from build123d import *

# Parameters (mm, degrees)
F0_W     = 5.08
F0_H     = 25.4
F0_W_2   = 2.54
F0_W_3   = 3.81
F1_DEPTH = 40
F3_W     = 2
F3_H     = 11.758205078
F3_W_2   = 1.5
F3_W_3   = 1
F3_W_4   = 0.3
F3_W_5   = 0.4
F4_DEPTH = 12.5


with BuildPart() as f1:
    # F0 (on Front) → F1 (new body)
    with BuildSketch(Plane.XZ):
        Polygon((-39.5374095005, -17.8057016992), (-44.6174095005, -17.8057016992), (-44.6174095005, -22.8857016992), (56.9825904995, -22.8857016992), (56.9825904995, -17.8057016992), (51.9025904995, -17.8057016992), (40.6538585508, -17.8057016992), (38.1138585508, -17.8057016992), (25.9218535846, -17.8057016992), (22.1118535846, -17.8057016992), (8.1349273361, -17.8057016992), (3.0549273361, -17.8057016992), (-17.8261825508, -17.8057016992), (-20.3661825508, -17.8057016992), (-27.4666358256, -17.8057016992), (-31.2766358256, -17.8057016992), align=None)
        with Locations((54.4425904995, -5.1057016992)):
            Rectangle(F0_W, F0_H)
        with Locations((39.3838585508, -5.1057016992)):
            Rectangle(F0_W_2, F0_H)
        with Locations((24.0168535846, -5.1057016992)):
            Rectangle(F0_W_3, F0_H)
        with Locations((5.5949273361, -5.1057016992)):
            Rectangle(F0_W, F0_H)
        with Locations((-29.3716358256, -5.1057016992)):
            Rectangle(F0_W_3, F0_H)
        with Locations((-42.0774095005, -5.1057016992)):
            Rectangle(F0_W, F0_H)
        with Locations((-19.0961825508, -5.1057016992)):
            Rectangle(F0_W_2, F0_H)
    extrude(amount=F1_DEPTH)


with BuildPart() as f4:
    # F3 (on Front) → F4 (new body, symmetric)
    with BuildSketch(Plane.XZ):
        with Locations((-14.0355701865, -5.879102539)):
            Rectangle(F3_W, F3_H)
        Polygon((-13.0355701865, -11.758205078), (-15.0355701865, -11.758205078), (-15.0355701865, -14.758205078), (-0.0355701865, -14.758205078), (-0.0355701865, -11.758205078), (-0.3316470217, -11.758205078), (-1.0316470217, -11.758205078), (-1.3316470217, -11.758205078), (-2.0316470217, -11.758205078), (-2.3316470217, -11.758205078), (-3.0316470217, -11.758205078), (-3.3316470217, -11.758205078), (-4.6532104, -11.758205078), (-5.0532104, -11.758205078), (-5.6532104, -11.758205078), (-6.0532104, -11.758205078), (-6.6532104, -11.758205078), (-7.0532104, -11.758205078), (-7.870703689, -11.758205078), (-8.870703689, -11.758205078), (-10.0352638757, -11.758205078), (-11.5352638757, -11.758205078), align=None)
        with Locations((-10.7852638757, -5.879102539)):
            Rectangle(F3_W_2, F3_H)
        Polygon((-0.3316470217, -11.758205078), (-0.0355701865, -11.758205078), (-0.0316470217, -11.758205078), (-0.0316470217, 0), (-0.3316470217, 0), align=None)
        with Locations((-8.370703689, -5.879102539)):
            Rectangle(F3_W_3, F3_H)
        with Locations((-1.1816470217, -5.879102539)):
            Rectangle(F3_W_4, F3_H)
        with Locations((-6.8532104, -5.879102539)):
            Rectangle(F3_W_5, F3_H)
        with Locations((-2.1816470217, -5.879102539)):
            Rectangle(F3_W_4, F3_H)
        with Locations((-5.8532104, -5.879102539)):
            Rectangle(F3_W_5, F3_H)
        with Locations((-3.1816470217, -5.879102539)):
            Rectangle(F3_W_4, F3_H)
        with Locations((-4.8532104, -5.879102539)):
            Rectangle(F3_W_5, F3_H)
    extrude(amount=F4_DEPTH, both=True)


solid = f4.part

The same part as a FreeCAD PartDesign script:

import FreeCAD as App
import Part
import Sketcher
Q = App.Units.Quantity

doc = App.newDocument("Part")
body = doc.addObject("PartDesign::Body", "Body")

# Sketch on XZ plane
sketch1 = body.newObject("Sketcher::SketchObject", "Sketch")
sketch1.AttachmentSupport = (doc.getObject("XZ_Plane"), [""])
sketch1.MapMode = "FlatFace"
sketch1.addGeometry(Part.LineSegment(App.Vector(-44.61741, -22.885702, 0), App.Vector(56.98259, -22.885702, 0)), False)
sketch1.addGeometry(Part.LineSegment(App.Vector(56.98259, -22.885702, 0), App.Vector(56.98259, 7.594298, 0)), False)
sketch1.addGeometry(Part.LineSegment(App.Vector(56.98259, 7.594298, 0), App.Vector(51.902591, 7.594298, 0)), False)
sketch1.addGeometry(Part.LineSegment(App.Vector(51.902591, 7.594298, 0), App.Vector(51.902591, -17.805702, 0)), False)
sketch1.addGeometry(Part.LineSegment(App.Vector(51.902591, -17.805702, 0), App.Vector(40.653859, -17.805702, 0)), False)
sketch1.addGeometry(Part.LineSegment(App.Vector(40.653859, -17.805702, 0), App.Vector(40.653859, 7.594298, 0)), False)
sketch1.addGeometry(Part.LineSegment(App.Vector(40.653859, 7.594298, 0), App.Vector(38.113859, 7.594298, 0)), False)
sketch1.addGeometry(Part.LineSegment(App.Vector(38.113859, 7.594298, 0), App.Vector(38.113859, -17.805702, 0)), False)
sketch1.addGeometry(Part.LineSegment(App.Vector(38.113859, -17.805702, 0), App.Vector(25.921854, -17.805702, 0)), False)
sketch1.addGeometry(Part.LineSegment(App.Vector(25.921854, -17.805702, 0), App.Vector(25.921854, 7.594298, 0)), False)
sketch1.addGeometry(Part.LineSegment(App.Vector(25.921854, 7.594298, 0), App.Vector(22.111854, 7.594298, 0)), False)
sketch1.addGeometry(Part.LineSegment(App.Vector(22.111854, 7.594298, 0), App.Vector(22.111854, -17.805702, 0)), False)
sketch1.addGeometry(Part.LineSegment(App.Vector(22.111854, -17.805702, 0), App.Vector(8.134927, -17.805702, 0)), False)
sketch1.addGeometry(Part.LineSegment(App.Vector(8.134927, -17.805702, 0), App.Vector(8.134927, 7.594298, 0)), False)
sketch1.addGeometry(Part.LineSegment(App.Vector(8.134927, 7.594298, 0), App.Vector(3.054927, 7.594298, 0)), False)
sketch1.addGeometry(Part.LineSegment(App.Vector(3.054927, 7.594298, 0), App.Vector(3.054927, -17.805702, 0)), False)
sketch1.addGeometry(Part.LineSegment(App.Vector(3.054927, -17.805702, 0), App.Vector(-17.826183, -17.805702, 0)), False)
sketch1.addGeometry(Part.LineSegment(App.Vector(-17.826183, -17.805702, 0), App.Vector(-17.826183, 7.594298, 0)), False)
sketch1.addGeometry(Part.LineSegment(App.Vector(-17.826183, 7.594298, 0), App.Vector(-20.366183, 7.594298, 0)), False)
sketch1.addGeometry(Part.LineSegment(App.Vector(-20.366183, 7.594298, 0), App.Vector(-20.366183, -17.805702, 0)), False)
sketch1.addGeometry(Part.LineSegment(App.Vector(-20.366183, -17.805702, 0), App.Vector(-27.466636, -17.805702, 0)), False)
sketch1.addGeometry(Part.LineSegment(App.Vector(-27.466636, -17.805702, 0), App.Vector(-27.466636, 7.594298, 0)), False)
sketch1.addGeometry(Part.LineSegment(App.Vector(-27.466636, 7.594298, 0), App.Vector(-31.276636, 7.594298, 0)), False)
sketch1.addGeometry(Part.LineSegment(App.Vector(-31.276636, 7.594298, 0), App.Vector(-31.276636, -17.805702, 0)), False)
sketch1.addGeometry(Part.LineSegment(App.Vector(-31.276636, -17.805702, 0), App.Vector(-39.53741, -17.805702, 0)), False)
sketch1.addGeometry(Part.LineSegment(App.Vector(-39.53741, -17.805702, 0), App.Vector(-39.53741, 7.594298, 0)), False)
sketch1.addGeometry(Part.LineSegment(App.Vector(-39.53741, 7.594298, 0), App.Vector(-44.61741, 7.594298, 0)), False)
sketch1.addGeometry(Part.LineSegment(App.Vector(-44.61741, 7.594298, 0), App.Vector(-44.61741, -22.885702, 0)), False)
sketch1.addConstraint(Sketcher.Constraint("Coincident", 0, 2, 1, 1))
sketch1.addConstraint(Sketcher.Constraint("Coincident", 1, 2, 2, 1))
sketch1.addConstraint(Sketcher.Constraint("Coincident", 2, 2, 3, 1))
sketch1.addConstraint(Sketcher.Constraint("Coincident", 3, 2, 4, 1))
sketch1.addConstraint(Sketcher.Constraint("Coincident", 4, 2, 5, 1))
sketch1.addConstraint(Sketcher.Constraint("Coincident", 5, 2, 6, 1))
sketch1.addConstraint(Sketcher.Constraint("Coincident", 6, 2, 7, 1))
sketch1.addConstraint(Sketcher.Constraint("Coincident", 7, 2, 8, 1))
sketch1.addConstraint(Sketcher.Constraint("Coincident", 8, 2, 9, 1))
sketch1.addConstraint(Sketcher.Constraint("Coincident", 9, 2, 10, 1))
sketch1.addConstraint(Sketcher.Constraint("Coincident", 10, 2, 11, 1))
sketch1.addConstraint(Sketcher.Constraint("Coincident", 11, 2, 12, 1))
sketch1.addConstraint(Sketcher.Constraint("Coincident", 12, 2, 13, 1))
sketch1.addConstraint(Sketcher.Constraint("Coincident", 13, 2, 14, 1))
sketch1.addConstraint(Sketcher.Constraint("Coincident", 14, 2, 15, 1))
sketch1.addConstraint(Sketcher.Constraint("Coincident", 15, 2, 16, 1))
sketch1.addConstraint(Sketcher.Constraint("Coincident", 16, 2, 17, 1))
sketch1.addConstraint(Sketcher.Constraint("Coincident", 17, 2, 18, 1))
sketch1.addConstraint(Sketcher.Constraint("Coincident", 18, 2, 19, 1))
sketch1.addConstraint(Sketcher.Constraint("Coincident", 19, 2, 20, 1))
sketch1.addConstraint(Sketcher.Constraint("Coincident", 20, 2, 21, 1))
sketch1.addConstraint(Sketcher.Constraint("Coincident", 21, 2, 22, 1))
sketch1.addConstraint(Sketcher.Constraint("Coincident", 22, 2, 23, 1))
sketch1.addConstraint(Sketcher.Constraint("Coincident", 23, 2, 24, 1))
sketch1.addConstraint(Sketcher.Constraint("Coincident", 24, 2, 25, 1))
sketch1.addConstraint(Sketcher.Constraint("Coincident", 25, 2, 26, 1))
sketch1.addConstraint(Sketcher.Constraint("Coincident", 26, 2, 27, 1))
sketch1.addConstraint(Sketcher.Constraint("Coincident", 27, 2, 0, 1))
sketch1.addConstraint(Sketcher.Constraint("Horizontal", 0))
sketch1.addConstraint(Sketcher.Constraint("Vertical", 1))
sketch1.addConstraint(Sketcher.Constraint("Horizontal", 2))
sketch1.addConstraint(Sketcher.Constraint("Vertical", 3))
sketch1.addConstraint(Sketcher.Constraint("Horizontal", 4))
sketch1.addConstraint(Sketcher.Constraint("Vertical", 5))
sketch1.addConstraint(Sketcher.Constraint("Horizontal", 6))
sketch1.addConstraint(Sketcher.Constraint("Vertical", 7))
sketch1.addConstraint(Sketcher.Constraint("Horizontal", 8))
sketch1.addConstraint(Sketcher.Constraint("Vertical", 9))
sketch1.addConstraint(Sketcher.Constraint("Horizontal", 10))
sketch1.addConstraint(Sketcher.Constraint("Vertical", 11))
sketch1.addConstraint(Sketcher.Constraint("Horizontal", 12))
sketch1.addConstraint(Sketcher.Constraint("Vertical", 13))
sketch1.addConstraint(Sketcher.Constraint("Horizontal", 14))
sketch1.addConstraint(Sketcher.Constraint("Vertical", 15))
sketch1.addConstraint(Sketcher.Constraint("Horizontal", 16))
sketch1.addConstraint(Sketcher.Constraint("Vertical", 17))
sketch1.addConstraint(Sketcher.Constraint("Horizontal", 18))
sketch1.addConstraint(Sketcher.Constraint("Vertical", 19))
sketch1.addConstraint(Sketcher.Constraint("Horizontal", 20))
sketch1.addConstraint(Sketcher.Constraint("Vertical", 21))
sketch1.addConstraint(Sketcher.Constraint("Horizontal", 22))
sketch1.addConstraint(Sketcher.Constraint("Vertical", 23))
sketch1.addConstraint(Sketcher.Constraint("Horizontal", 24))
sketch1.addConstraint(Sketcher.Constraint("Vertical", 25))
sketch1.addConstraint(Sketcher.Constraint("Horizontal", 26))
sketch1.addConstraint(Sketcher.Constraint("Vertical", 27))
sketch1.addConstraint(Sketcher.Constraint("Horizontal", 2, 2, 5, 2))
sketch1.addConstraint(Sketcher.Constraint("Horizontal", 4, 2, 7, 2))
sketch1.addConstraint(Sketcher.Constraint("Horizontal", 6, 2, 9, 2))
sketch1.addConstraint(Sketcher.Constraint("Horizontal", 8, 2, 11, 2))
sketch1.addConstraint(Sketcher.Constraint("Horizontal", 10, 2, 13, 2))
sketch1.addConstraint(Sketcher.Constraint("Horizontal", 12, 2, 15, 2))
sketch1.addConstraint(Sketcher.Constraint("Horizontal", 14, 2, 17, 2))
sketch1.addConstraint(Sketcher.Constraint("Horizontal", 16, 2, 19, 2))
sketch1.addConstraint(Sketcher.Constraint("Horizontal", 18, 2, 21, 2))
sketch1.addConstraint(Sketcher.Constraint("Horizontal", 20, 2, 23, 2))
sketch1.addConstraint(Sketcher.Constraint("Horizontal", 22, 2, 25, 2))
sketch1.addConstraint(Sketcher.Constraint("Equal", 2, 14))
sketch1.addConstraint(Sketcher.Constraint("Equal", 6, 18))
sketch1.addConstraint(Sketcher.Constraint("Equal", 10, 22))
sketch1.addConstraint(Sketcher.Constraint("Equal", 14, 26))
sketch1.addConstraint(Sketcher.Constraint("DistanceX", 0, 1, 0, 2, Q("101.6 mm")))
sketch1.addConstraint(Sketcher.Constraint("DistanceY", 3, 2, 3, 1, Q("25.4 mm")))
sketch1.addConstraint(Sketcher.Constraint("DistanceX", 2, 2, 2, 1, Q("5.08 mm")))
sketch1.addConstraint(Sketcher.Constraint("DistanceX", 6, 2, 6, 1, Q("2.54 mm")))
sketch1.addConstraint(Sketcher.Constraint("DistanceX", 10, 2, 10, 1, Q("3.81 mm")))
sketch1.addConstraint(Sketcher.Constraint("DistanceY", 1, 1, 1, 2, Q("30.48 mm")))
sketch1.addConstraint(Sketcher.Constraint("DistanceX", 4, 2, 4, 1, Q("11.248732 mm")))
sketch1.addConstraint(Sketcher.Constraint("DistanceX", 16, 2, 16, 1, Q("20.88111 mm")))
sketch1.addConstraint(Sketcher.Constraint("DistanceY", 0, 2, -1, 1, Q("22.885702 mm")))
sketch1.addConstraint(Sketcher.Constraint("DistanceX", 8, 2, 8, 1, Q("12.192005 mm")))
sketch1.addConstraint(Sketcher.Constraint("DistanceX", 12, 2, 12, 1, Q("13.976926 mm")))
sketch1.addConstraint(Sketcher.Constraint("DistanceX", 20, 2, 20, 1, Q("7.100453 mm")))
sketch1.addConstraint(Sketcher.Constraint("DistanceX", -1, 1, 0, 2, Q("56.98259 mm")))
pad1 = body.newObject("PartDesign::Pad", "Pad")
pad1.Profile = sketch1
pad1.Length = 40
body2 = doc.addObject("PartDesign::Body", "Body001")

# Sketch on XZ plane
sketch2 = body2.newObject("Sketcher::SketchObject", "Sketch001")
sketch2.AttachmentSupport = (doc.getObject("XZ_Plane001"), [""])
sketch2.MapMode = "FlatFace"
sketch2.addGeometry(Part.LineSegment(App.Vector(-15.03557, 0, 0), App.Vector(-15.03557, -14.758205, 0)), False)
sketch2.addGeometry(Part.LineSegment(App.Vector(-15.03557, -14.758205, 0), App.Vector(-0.03557, -14.758205, 0)), False)
sketch2.addGeometry(Part.LineSegment(App.Vector(-0.03557, -14.758205, 0), App.Vector(-0.03557, -11.758205, 0)), False)
sketch2.addGeometry(Part.LineSegment(App.Vector(-0.03557, -11.758205, 0), App.Vector(-0.031647, -11.758205, 0)), False)
sketch2.addGeometry(Part.LineSegment(App.Vector(-0.031647, -11.758205, 0), App.Vector(-0.031647, 0, 0)), False)
sketch2.addGeometry(Part.LineSegment(App.Vector(-0.031647, 0, 0), App.Vector(-0.331647, 0, 0)), False)
sketch2.addGeometry(Part.LineSegment(App.Vector(-0.331647, 0, 0), App.Vector(-0.331647, -11.758205, 0)), False)
sketch2.addGeometry(Part.LineSegment(App.Vector(-0.331647, -11.758205, 0), App.Vector(-1.031647, -11.758205, 0)), False)
sketch2.addGeometry(Part.LineSegment(App.Vector(-1.031647, -11.758205, 0), App.Vector(-1.031647, 0, 0)), False)
sketch2.addGeometry(Part.LineSegment(App.Vector(-1.031647, 0, 0), App.Vector(-1.331647, 0, 0)), False)
sketch2.addGeometry(Part.LineSegment(App.Vector(-1.331647, 0, 0), App.Vector(-1.331647, -11.758205, 0)), False)
sketch2.addGeometry(Part.LineSegment(App.Vector(-1.331647, -11.758205, 0), App.Vector(-2.031647, -11.758205, 0)), False)
sketch2.addGeometry(Part.LineSegment(App.Vector(-2.031647, -11.758205, 0), App.Vector(-2.031647, 0, 0)), False)
sketch2.addGeometry(Part.LineSegment(App.Vector(-2.031647, 0, 0), App.Vector(-2.331647, 0, 0)), False)
sketch2.addGeometry(Part.LineSegment(App.Vector(-2.331647, 0, 0), App.Vector(-2.331647, -11.758205, 0)), False)
sketch2.addGeometry(Part.LineSegment(App.Vector(-2.331647, -11.758205, 0), App.Vector(-3.031647, -11.758205, 0)), False)
sketch2.addGeometry(Part.LineSegment(App.Vector(-3.031647, -11.758205, 0), App.Vector(-3.031647, 0, 0)), False)
sketch2.addGeometry(Part.LineSegment(App.Vector(-3.031647, 0, 0), App.Vector(-3.331647, 0, 0)), False)
sketch2.addGeometry(Part.LineSegment(App.Vector(-3.331647, 0, 0), App.Vector(-3.331647, -11.758205, 0)), False)
sketch2.addGeometry(Part.LineSegment(App.Vector(-3.331647, -11.758205, 0), App.Vector(-4.65321, -11.758205, 0)), False)
sketch2.addGeometry(Part.LineSegment(App.Vector(-4.65321, -11.758205, 0), App.Vector(-4.65321, 0, 0)), False)
sketch2.addGeometry(Part.LineSegment(App.Vector(-4.65321, 0, 0), App.Vector(-5.05321, 0, 0)), False)
sketch2.addGeometry(Part.LineSegment(App.Vector(-5.05321, 0, 0), App.Vector(-5.05321, -11.758205, 0)), False)
sketch2.addGeometry(Part.LineSegment(App.Vector(-5.05321, -11.758205, 0), App.Vector(-5.65321, -11.758205, 0)), False)
sketch2.addGeometry(Part.LineSegment(App.Vector(-5.65321, -11.758205, 0), App.Vector(-5.65321, 0, 0)), False)
sketch2.addGeometry(Part.LineSegment(App.Vector(-5.65321, 0, 0), App.Vector(-6.05321, 0, 0)), False)
sketch2.addGeometry(Part.LineSegment(App.Vector(-6.05321, 0, 0), App.Vector(-6.05321, -11.758205, 0)), False)
sketch2.addGeometry(Part.LineSegment(App.Vector(-6.05321, -11.758205, 0), App.Vector(-6.65321, -11.758205, 0)), False)
sketch2.addGeometry(Part.LineSegment(App.Vector(-6.65321, -11.758205, 0), App.Vector(-6.65321, 0, 0)), False)
sketch2.addGeometry(Part.LineSegment(App.Vector(-6.65321, 0, 0), App.Vector(-7.05321, 0, 0)), False)
sketch2.addGeometry(Part.LineSegment(App.Vector(-7.05321, 0, 0), App.Vector(-7.05321, -11.758205, 0)), False)
sketch2.addGeometry(Part.LineSegment(App.Vector(-7.05321, -11.758205, 0), App.Vector(-7.870704, -11.758205, 0)), False)
sketch2.addGeometry(Part.LineSegment(App.Vector(-7.870704, -11.758205, 0), App.Vector(-7.870704, 0, 0)), False)
sketch2.addGeometry(Part.LineSegment(App.Vector(-7.870704, 0, 0), App.Vector(-8.870704, 0, 0)), False)
sketch2.addGeometry(Part.LineSegment(App.Vector(-8.870704, 0, 0), App.Vector(-8.870704, -11.758205, 0)), False)
sketch2.addGeometry(Part.LineSegment(App.Vector(-8.870704, -11.758205, 0), App.Vector(-10.035264, -11.758205, 0)), False)
sketch2.addGeometry(Part.LineSegment(App.Vector(-10.035264, -11.758205, 0), App.Vector(-10.035264, 0, 0)), False)
sketch2.addGeometry(Part.LineSegment(App.Vector(-10.035264, 0, 0), App.Vector(-11.535264, 0, 0)), False)
sketch2.addGeometry(Part.LineSegment(App.Vector(-11.535264, 0, 0), App.Vector(-11.535264, -11.758205, 0)), False)
sketch2.addGeometry(Part.LineSegment(App.Vector(-11.535264, -11.758205, 0), App.Vector(-13.03557, -11.758205, 0)), False)
sketch2.addGeometry(Part.LineSegment(App.Vector(-13.03557, -11.758205, 0), App.Vector(-13.03557, 0, 0)), False)
sketch2.addGeometry(Part.LineSegment(App.Vector(-13.03557, 0, 0), App.Vector(-15.03557, 0, 0)), False)
sketch2.addConstraint(Sketcher.Constraint("Coincident", 0, 2, 1, 1))
sketch2.addConstraint(Sketcher.Constraint("Coincident", 1, 2, 2, 1))
sketch2.addConstraint(Sketcher.Constraint("Coincident", 2, 2, 3, 1))
sketch2.addConstraint(Sketcher.Constraint("Coincident", 3, 2, 4, 1))
sketch2.addConstraint(Sketcher.Constraint("Coincident", 4, 2, 5, 1))
sketch2.addConstraint(Sketcher.Constraint("Coincident", 5, 2, 6, 1))
sketch2.addConstraint(Sketcher.Constraint("Coincident", 6, 2, 7, 1))
sketch2.addConstraint(Sketcher.Constraint("Coincident", 7, 2, 8, 1))
sketch2.addConstraint(Sketcher.Constraint("Coincident", 8, 2, 9, 1))
sketch2.addConstraint(Sketcher.Constraint("Coincident", 9, 2, 10, 1))
sketch2.addConstraint(Sketcher.Constraint("Coincident", 10, 2, 11, 1))
sketch2.addConstraint(Sketcher.Constraint("Coincident", 11, 2, 12, 1))
sketch2.addConstraint(Sketcher.Constraint("Coincident", 12, 2, 13, 1))
sketch2.addConstraint(Sketcher.Constraint("Coincident", 13, 2, 14, 1))
sketch2.addConstraint(Sketcher.Constraint("Coincident", 14, 2, 15, 1))
sketch2.addConstraint(Sketcher.Constraint("Coincident", 15, 2, 16, 1))
sketch2.addConstraint(Sketcher.Constraint("Coincident", 16, 2, 17, 1))
sketch2.addConstraint(Sketcher.Constraint("Coincident", 17, 2, 18, 1))
sketch2.addConstraint(Sketcher.Constraint("Coincident", 18, 2, 19, 1))
sketch2.addConstraint(Sketcher.Constraint("Coincident", 19, 2, 20, 1))
sketch2.addConstraint(Sketcher.Constraint("Coincident", 20, 2, 21, 1))
sketch2.addConstraint(Sketcher.Constraint("Coincident", 21, 2, 22, 1))
sketch2.addConstraint(Sketcher.Constraint("Coincident", 22, 2, 23, 1))
sketch2.addConstraint(Sketcher.Constraint("Coincident", 23, 2, 24, 1))
sketch2.addConstraint(Sketcher.Constraint("Coincident", 24, 2, 25, 1))
sketch2.addConstraint(Sketcher.Constraint("Coincident", 25, 2, 26, 1))
sketch2.addConstraint(Sketcher.Constraint("Coincident", 26, 2, 27, 1))
sketch2.addConstraint(Sketcher.Constraint("Coincident", 27, 2, 28, 1))
sketch2.addConstraint(Sketcher.Constraint("Coincident", 28, 2, 29, 1))
sketch2.addConstraint(Sketcher.Constraint("Coincident", 29, 2, 30, 1))
sketch2.addConstraint(Sketcher.Constraint("Coincident", 30, 2, 31, 1))
sketch2.addConstraint(Sketcher.Constraint("Coincident", 31, 2, 32, 1))
sketch2.addConstraint(Sketcher.Constraint("Coincident", 32, 2, 33, 1))
sketch2.addConstraint(Sketcher.Constraint("Coincident", 33, 2, 34, 1))
sketch2.addConstraint(Sketcher.Constraint("Coincident", 34, 2, 35, 1))
sketch2.addConstraint(Sketcher.Constraint("Coincident", 35, 2, 36, 1))
sketch2.addConstraint(Sketcher.Constraint("Coincident", 36, 2, 37, 1))
sketch2.addConstraint(Sketcher.Constraint("Coincident", 37, 2, 38, 1))
sketch2.addConstraint(Sketcher.Constraint("Coincident", 38, 2, 39, 1))
sketch2.addConstraint(Sketcher.Constraint("Coincident", 39, 2, 40, 1))
sketch2.addConstraint(Sketcher.Constraint("Coincident", 40, 2, 41, 1))
sketch2.addConstraint(Sketcher.Constraint("Coincident", 41, 2, 0, 1))
sketch2.addConstraint(Sketcher.Constraint("Vertical", 0))
sketch2.addConstraint(Sketcher.Constraint("Horizontal", 1))
sketch2.addConstraint(Sketcher.Constraint("Vertical", 2))
sketch2.addConstraint(Sketcher.Constraint("Horizontal", 3))
sketch2.addConstraint(Sketcher.Constraint("Vertical", 4))
sketch2.addConstraint(Sketcher.Constraint("Horizontal", 5))
sketch2.addConstraint(Sketcher.Constraint("Vertical", 6))
sketch2.addConstraint(Sketcher.Constraint("Horizontal", 7))
sketch2.addConstraint(Sketcher.Constraint("Vertical", 8))
sketch2.addConstraint(Sketcher.Constraint("Horizontal", 9))
sketch2.addConstraint(Sketcher.Constraint("Vertical", 10))
sketch2.addConstraint(Sketcher.Constraint("Horizontal", 11))
sketch2.addConstraint(Sketcher.Constraint("Vertical", 12))
sketch2.addConstraint(Sketcher.Constraint("Horizontal", 13))
sketch2.addConstraint(Sketcher.Constraint("Vertical", 14))
sketch2.addConstraint(Sketcher.Constraint("Horizontal", 15))
sketch2.addConstraint(Sketcher.Constraint("Vertical", 16))
sketch2.addConstraint(Sketcher.Constraint("Horizontal", 17))
sketch2.addConstraint(Sketcher.Constraint("Vertical", 18))
sketch2.addConstraint(Sketcher.Constraint("Horizontal", 19))
sketch2.addConstraint(Sketcher.Constraint("Vertical", 20))
sketch2.addConstraint(Sketcher.Constraint("Horizontal", 21))
sketch2.addConstraint(Sketcher.Constraint("Vertical", 22))
sketch2.addConstraint(Sketcher.Constraint("Horizontal", 23))
sketch2.addConstraint(Sketcher.Constraint("Vertical", 24))
sketch2.addConstraint(Sketcher.Constraint("Horizontal", 25))
sketch2.addConstraint(Sketcher.Constraint("Vertical", 26))
sketch2.addConstraint(Sketcher.Constraint("Horizontal", 27))
sketch2.addConstraint(Sketcher.Constraint("Vertical", 28))
sketch2.addConstraint(Sketcher.Constraint("Horizontal", 29))
sketch2.addConstraint(Sketcher.Constraint("Vertical", 30))
sketch2.addConstraint(Sketcher.Constraint("Horizontal", 31))
sketch2.addConstraint(Sketcher.Constraint("Vertical", 32))
sketch2.addConstraint(Sketcher.Constraint("Horizontal", 33))
sketch2.addConstraint(Sketcher.Constraint("Vertical", 34))
sketch2.addConstraint(Sketcher.Constraint("Horizontal", 35))
sketch2.addConstraint(Sketcher.Constraint("Vertical", 36))
sketch2.addConstraint(Sketcher.Constraint("Horizontal", 37))
sketch2.addConstraint(Sketcher.Constraint("Vertical", 38))
sketch2.addConstraint(Sketcher.Constraint("Horizontal", 39))
sketch2.addConstraint(Sketcher.Constraint("Vertical", 40))
sketch2.addConstraint(Sketcher.Constraint("Horizontal", 41))
sketch2.addConstraint(Sketcher.Constraint("PointOnObject", 4, 2, -1))
sketch2.addConstraint(Sketcher.Constraint("PointOnObject", 8, 2, -1))
sketch2.addConstraint(Sketcher.Constraint("PointOnObject", 12, 2, -1))
sketch2.addConstraint(Sketcher.Constraint("PointOnObject", 16, 2, -1))
sketch2.addConstraint(Sketcher.Constraint("PointOnObject", 20, 2, -1))
sketch2.addConstraint(Sketcher.Constraint("PointOnObject", 24, 2, -1))
sketch2.addConstraint(Sketcher.Constraint("PointOnObject", 28, 2, -1))
sketch2.addConstraint(Sketcher.Constraint("PointOnObject", 32, 2, -1))
sketch2.addConstraint(Sketcher.Constraint("PointOnObject", 36, 2, -1))
sketch2.addConstraint(Sketcher.Constraint("PointOnObject", 40, 2, -1))
sketch2.addConstraint(Sketcher.Constraint("Horizontal", 3, 2, 6, 2))
sketch2.addConstraint(Sketcher.Constraint("Horizontal", 7, 2, 10, 2))
sketch2.addConstraint(Sketcher.Constraint("Horizontal", 11, 2, 14, 2))
sketch2.addConstraint(Sketcher.Constraint("Horizontal", 15, 2, 18, 2))
sketch2.addConstraint(Sketcher.Constraint("Horizontal", 19, 2, 22, 2))
sketch2.addConstraint(Sketcher.Constraint("Horizontal", 23, 2, 26, 2))
sketch2.addConstraint(Sketcher.Constraint("Horizontal", 27, 2, 30, 2))
sketch2.addConstraint(Sketcher.Constraint("Horizontal", 31, 2, 34, 2))
sketch2.addConstraint(Sketcher.Constraint("Horizontal", 35, 2, 38, 2))
sketch2.addConstraint(Sketcher.Constraint("Equal", 5, 9))
sketch2.addConstraint(Sketcher.Constraint("Equal", 7, 11))
sketch2.addConstraint(Sketcher.Constraint("Equal", 9, 13))
sketch2.addConstraint(Sketcher.Constraint("Equal", 11, 15))
sketch2.addConstraint(Sketcher.Constraint("Equal", 13, 17))
sketch2.addConstraint(Sketcher.Constraint("Equal", 21, 25))
sketch2.addConstraint(Sketcher.Constraint("Equal", 23, 27))
sketch2.addConstraint(Sketcher.Constraint("Equal", 25, 29))
sketch2.addConstraint(Sketcher.Constraint("DistanceX", 1, 1, 1, 2, Q("15 mm")))
sketch2.addConstraint(Sketcher.Constraint("DistanceX", 33, 2, 33, 1, Q("1 mm")))
sketch2.addConstraint(Sketcher.Constraint("DistanceX", 41, 2, 41, 1, Q("2 mm")))
sketch2.addConstraint(Sketcher.Constraint("DistanceY", 2, 1, 2, 2, Q("3 mm")))
sketch2.addConstraint(Sketcher.Constraint("DistanceX", 5, 2, 5, 1, Q("0.3 mm")))
sketch2.addConstraint(Sketcher.Constraint("DistanceX", 7, 2, 7, 1, Q("0.7 mm")))
sketch2.addConstraint(Sketcher.Constraint("DistanceX", 21, 2, 21, 1, Q("0.4 mm")))
sketch2.addConstraint(Sketcher.Constraint("DistanceX", 23, 2, 23, 1, Q("0.6 mm")))
sketch2.addConstraint(Sketcher.Constraint("DistanceX", 37, 2, 37, 1, Q("1.5 mm")))
sketch2.addConstraint(Sketcher.Constraint("DistanceX", 35, 2, 35, 1, Q("1.16456 mm")))
sketch2.addConstraint(Sketcher.Constraint("DistanceX", 3, 1, 3, 2, Q("0.003923 mm")))
sketch2.addConstraint(Sketcher.Constraint("DistanceX", 19, 2, 19, 1, Q("1.321563 mm")))
sketch2.addConstraint(Sketcher.Constraint("DistanceX", 31, 2, 31, 1, Q("0.817493 mm")))
sketch2.addConstraint(Sketcher.Constraint("DistanceY", 0, 2, 0, 1, Q("14.758205 mm")))
sketch2.addConstraint(Sketcher.Constraint("DistanceX", 0, 2, -1, 1, Q("15.03557 mm")))
pad2 = body2.newObject("PartDesign::Pad", "Pad001")
pad2.Profile = sketch2
pad2.Length = 25
pad2.Midplane = True
body.Visibility = False

doc.recompute()
